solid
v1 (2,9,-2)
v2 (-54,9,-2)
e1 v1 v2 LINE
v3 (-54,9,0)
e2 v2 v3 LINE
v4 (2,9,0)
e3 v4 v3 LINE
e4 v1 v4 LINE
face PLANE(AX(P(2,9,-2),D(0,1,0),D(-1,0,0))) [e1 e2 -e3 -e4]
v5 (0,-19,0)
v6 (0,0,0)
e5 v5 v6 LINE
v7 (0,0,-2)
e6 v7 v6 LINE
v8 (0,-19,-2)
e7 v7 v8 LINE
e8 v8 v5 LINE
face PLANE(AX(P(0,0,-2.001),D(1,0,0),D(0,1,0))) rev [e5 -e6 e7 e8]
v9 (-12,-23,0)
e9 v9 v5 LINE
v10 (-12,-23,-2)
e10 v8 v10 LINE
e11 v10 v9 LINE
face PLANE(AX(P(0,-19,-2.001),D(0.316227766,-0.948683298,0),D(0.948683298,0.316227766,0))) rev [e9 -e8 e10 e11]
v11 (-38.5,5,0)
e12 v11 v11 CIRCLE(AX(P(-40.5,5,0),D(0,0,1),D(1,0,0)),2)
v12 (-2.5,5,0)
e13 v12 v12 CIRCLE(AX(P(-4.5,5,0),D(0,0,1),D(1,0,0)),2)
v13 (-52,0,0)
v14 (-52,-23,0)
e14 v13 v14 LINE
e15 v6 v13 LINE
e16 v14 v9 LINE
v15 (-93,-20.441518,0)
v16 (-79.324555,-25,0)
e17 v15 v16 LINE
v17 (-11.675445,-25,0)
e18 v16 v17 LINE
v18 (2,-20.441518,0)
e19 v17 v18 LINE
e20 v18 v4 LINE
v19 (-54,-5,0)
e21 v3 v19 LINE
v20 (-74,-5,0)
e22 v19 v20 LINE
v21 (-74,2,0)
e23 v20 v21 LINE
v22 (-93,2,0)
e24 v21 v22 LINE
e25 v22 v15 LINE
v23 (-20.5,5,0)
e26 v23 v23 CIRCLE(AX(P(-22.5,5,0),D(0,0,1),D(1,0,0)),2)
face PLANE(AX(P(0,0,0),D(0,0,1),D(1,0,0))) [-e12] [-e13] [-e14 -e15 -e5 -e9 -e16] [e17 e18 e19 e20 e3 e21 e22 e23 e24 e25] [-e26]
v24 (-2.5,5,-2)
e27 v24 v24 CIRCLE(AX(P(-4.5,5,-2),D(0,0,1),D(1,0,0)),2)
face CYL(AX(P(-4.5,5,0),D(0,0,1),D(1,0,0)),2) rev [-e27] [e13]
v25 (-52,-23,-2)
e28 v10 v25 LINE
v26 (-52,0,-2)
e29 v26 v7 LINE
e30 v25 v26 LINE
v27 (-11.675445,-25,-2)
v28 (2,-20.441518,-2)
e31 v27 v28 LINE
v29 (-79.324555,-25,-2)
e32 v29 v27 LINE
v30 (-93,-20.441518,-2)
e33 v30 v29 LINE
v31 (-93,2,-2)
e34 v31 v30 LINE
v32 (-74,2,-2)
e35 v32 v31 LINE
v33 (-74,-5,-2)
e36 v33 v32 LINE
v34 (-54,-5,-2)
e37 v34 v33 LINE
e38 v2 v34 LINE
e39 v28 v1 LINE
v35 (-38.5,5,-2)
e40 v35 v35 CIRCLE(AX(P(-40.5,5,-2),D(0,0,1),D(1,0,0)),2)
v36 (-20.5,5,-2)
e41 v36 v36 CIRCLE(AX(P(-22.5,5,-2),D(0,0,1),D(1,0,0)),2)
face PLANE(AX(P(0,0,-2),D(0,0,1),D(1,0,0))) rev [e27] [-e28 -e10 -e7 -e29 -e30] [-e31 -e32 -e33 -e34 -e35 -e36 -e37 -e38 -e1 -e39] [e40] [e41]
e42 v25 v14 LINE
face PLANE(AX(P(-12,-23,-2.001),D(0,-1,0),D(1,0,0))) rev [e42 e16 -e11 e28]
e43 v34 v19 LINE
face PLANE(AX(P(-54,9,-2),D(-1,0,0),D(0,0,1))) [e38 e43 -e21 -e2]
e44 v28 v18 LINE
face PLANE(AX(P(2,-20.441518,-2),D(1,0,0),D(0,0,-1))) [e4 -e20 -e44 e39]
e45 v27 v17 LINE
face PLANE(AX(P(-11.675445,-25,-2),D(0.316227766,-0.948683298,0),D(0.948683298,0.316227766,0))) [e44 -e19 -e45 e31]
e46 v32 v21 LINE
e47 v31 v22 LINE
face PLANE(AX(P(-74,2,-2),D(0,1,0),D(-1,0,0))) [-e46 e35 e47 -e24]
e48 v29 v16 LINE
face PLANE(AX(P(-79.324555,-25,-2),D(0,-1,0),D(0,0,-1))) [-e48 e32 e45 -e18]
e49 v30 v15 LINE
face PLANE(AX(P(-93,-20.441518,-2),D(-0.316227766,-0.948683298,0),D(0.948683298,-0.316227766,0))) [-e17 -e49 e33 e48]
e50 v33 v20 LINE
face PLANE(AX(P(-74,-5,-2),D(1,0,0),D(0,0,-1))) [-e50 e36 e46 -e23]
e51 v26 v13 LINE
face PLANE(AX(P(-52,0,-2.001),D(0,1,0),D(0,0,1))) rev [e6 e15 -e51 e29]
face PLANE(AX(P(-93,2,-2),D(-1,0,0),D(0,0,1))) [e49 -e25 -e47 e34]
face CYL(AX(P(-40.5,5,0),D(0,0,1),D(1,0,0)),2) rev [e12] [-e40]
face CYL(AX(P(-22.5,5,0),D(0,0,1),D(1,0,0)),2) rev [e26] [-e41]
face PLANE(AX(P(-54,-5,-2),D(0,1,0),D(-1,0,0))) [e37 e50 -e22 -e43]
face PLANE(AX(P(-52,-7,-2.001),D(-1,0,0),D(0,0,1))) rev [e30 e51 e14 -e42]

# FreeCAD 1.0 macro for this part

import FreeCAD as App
import Part
import Sketcher
from FreeCAD import Vector


def add_polygon(sketch, points):
    """Adds a closed chain of lines whose ends are joined by coincident constraints."""
    first, n = sketch.GeometryCount, len(points)
    for a, b in zip(points, points[1:] + points[:1]):
        sketch.addGeometry(Part.LineSegment(App.Vector(*a, 0), App.Vector(*b, 0)), False)
    for i in range(n):
        sketch.addConstraint(Sketcher.Constraint("Coincident", first + i, 2, first + (i + 1) % n, 1))

doc = App.newDocument("Part")
body = doc.addObject("PartDesign::Body", "Body")

# Sketch on XY plane
sketch1 = body.newObject("Sketcher::SketchObject", "Sketch")
sketch1.AttachmentSupport = (doc.getObject("XY_Plane"), [""])
sketch1.MapMode = "FlatFace"
add_polygon(sketch1, [(2, 9), (-54, 9), (-54, -5), (-74, -5), (-74, 2), (-93, 2), (-93, -20), (-79, -25), (-12, -25), (2, -20)])  # lines 0-9
sketch1.addConstraint(Sketcher.Constraint("Horizontal", 0))
sketch1.addConstraint(Sketcher.Constraint("Vertical", 1))
sketch1.addConstraint(Sketcher.Constraint("Horizontal", 2))
sketch1.addConstraint(Sketcher.Constraint("Vertical", 3))
sketch1.addConstraint(Sketcher.Constraint("Horizontal", 4))
sketch1.addConstraint(Sketcher.Constraint("Vertical", 5))
sketch1.addConstraint(Sketcher.Constraint("Horizontal", 7))
sketch1.addConstraint(Sketcher.Constraint("Vertical", 9))
sketch1.addConstraint(Sketcher.Constraint("Horizontal", 5, 2, 8, 2))
sketch1.addConstraint(Sketcher.Constraint("Equal", 6, 8))
sketch1.addConstraint(Sketcher.Constraint("DistanceX", 0, 2, 0, 1, 56.0))
sketch1.addConstraint(Sketcher.Constraint("DistanceX", 2, 2, 2, 1, 20.0))
sketch1.addConstraint(Sketcher.Constraint("DistanceX", 4, 2, 4, 1, 19.0))
sketch1.addConstraint(Sketcher.Constraint("DistanceY", 1, 2, 1, 1, 14.0))
sketch1.addConstraint(Sketcher.Constraint("DistanceY", 3, 1, 3, 2, 7.0))
sketch1.addConstraint(Sketcher.Constraint("DistanceX", 0, 2, -1, 1, 54.0))
sketch1.addConstraint(Sketcher.Constraint("DistanceY", -1, 1, 0, 2, 9.0))
sketch1.addConstraint(Sketcher.Constraint("DistanceY", 6, 2, -1, 1, 25.0))
sketch1.addConstraint(Sketcher.Constraint("DistanceX", 7, 1, 7, 2, 67.649111))
sketch1.addConstraint(Sketcher.Constraint("DistanceY", 5, 2, 5, 1, 22.441518))
pad1 = body.newObject("PartDesign::Pad", "Pad")
pad1.Profile = sketch1
pad1.Length = 2
pad1.Reversed = True

# Sketch on XY plane
sketch2 = body.newObject("Sketcher::SketchObject", "Sketch001")
sketch2.AttachmentSupport = (doc.getObject("XY_Plane"), [""])
sketch2.MapMode = "FlatFace"
sketch2.addGeometry(Part.Circle(Vector(-40.5, 5, 0), Vector(0, 0, 1), 2), False)
sketch2.addGeometry(Part.Circle(Vector(-22.5, 5, 0), Vector(0, 0, 1), 2), False)
sketch2.addGeometry(Part.Circle(Vector(-4.5, 5, 0), Vector(0, 0, 1), 2), False)
sketch2.addConstraint(Sketcher.Constraint("Equal", 0, 1))
sketch2.addConstraint(Sketcher.Constraint("Equal", 1, 2))
sketch2.addConstraint(Sketcher.Constraint("Horizontal", 0, 3, 1, 3))
sketch2.addConstraint(Sketcher.Constraint("Horizontal", 1, 3, 2, 3))
sketch2.addConstraint(Sketcher.Constraint("Diameter", 0, 4.0))
sketch2.addConstraint(Sketcher.Constraint("DistanceY", -1, 1, 0, 3, 5.0))
sketch2.addConstraint(Sketcher.Constraint("DistanceX", 0, 3, 1, 3, 18.0))
sketch2.addConstraint(Sketcher.Constraint("DistanceX", 1, 3, 2, 3, 18.0))
sketch2.addConstraint(Sketcher.Constraint("DistanceX", 0, 3, -1, 1, 40.5))
doc.recompute()
hole = body.newObject("PartDesign::Hole", "Hole")
hole.Profile = sketch2
hole.ThreadType = "None"
hole.Diameter = 4
hole.DepthType = "ThroughAll"

# Sketch on XY plane
sketch3 = body.newObject("Sketcher::SketchObject", "Sketch002")
sketch3.AttachmentSupport = (doc.getObject("XY_Plane"), [""])
sketch3.MapMode = "FlatFace"
add_polygon(sketch3, [(0, -19), (0, 0), (-52, 0), (-52, -7), (-76, -7), (-76, 0), (-91, 0), (-91, -19), (-79, -23), (-12, -23)])  # lines 0-9
sketch3.addConstraint(Sketcher.Constraint("Vertical", 0))
sketch3.addConstraint(Sketcher.Constraint("Horizontal", 1))
sketch3.addConstraint(Sketcher.Constraint("Vertical", 2))
sketch3.addConstraint(Sketcher.Constraint("Horizontal", 3))
sketch3.addConstraint(Sketcher.Constraint("Vertical", 4))
sketch3.addConstraint(Sketcher.Constraint("Horizontal", 5))
sketch3.addConstraint(Sketcher.Constraint("Vertical", 6))
sketch3.addConstraint(Sketcher.Constraint("Horizontal", 8))
sketch3.addConstraint(Sketcher.Constraint("Coincident", 0, 2, -1, 1))
sketch3.addConstraint(Sketcher.Constraint("PointOnObject", 4, 2, -1))
sketch3.addConstraint(Sketcher.Constraint("Horizontal", 6, 2, 9, 2))
sketch3.addConstraint(Sketcher.Constraint("Equal", 7, 9))
sketch3.addConstraint(Sketcher.Constraint("DistanceX", 1, 2, 1, 1, 52.0))
sketch3.addConstraint(Sketcher.Constraint("DistanceX", 3, 2, 3, 1, 24.0))
sketch3.addConstraint(Sketcher.Constraint("DistanceX", 5, 2, 5, 1, 15.0))
sketch3.addConstraint(Sketcher.Constraint("DistanceX", 8, 1, 8, 2, 67.0))
sketch3.addConstraint(Sketcher.Constraint("DistanceY", 0, 1, 0, 2, 19.0))
sketch3.addConstraint(Sketcher.Constraint("DistanceY", 2, 2, 2, 1, 7.0))
sketch3.addConstraint(Sketcher.Constraint("DistanceY", 7, 2, -1, 1, 23.0))
pocket1 = body.newObject("PartDesign::Pocket", "Pocket")
pocket1.Profile = sketch3
pocket1.Type = "UpToFirst"

# Sketch on XY plane
sketch4 = body.newObject("Sketcher::SketchObject", "Sketch003")
sketch4.AttachmentSupport = (doc.getObject("XY_Plane"), [""])
sketch4.MapMode = "FlatFace"
add_polygon(sketch4, [(-52, -23), (-52, -7), (-76, -7), (-76, 0), (-91, 0), (-91, -19), (-79, -23)])  # lines 0-6
sketch4.addConstraint(Sketcher.Constraint("Vertical", 0))
sketch4.addConstraint(Sketcher.Constraint("Horizontal", 1))
sketch4.addConstraint(Sketcher.Constraint("Vertical", 2))
sketch4.addConstraint(Sketcher.Constraint("Horizontal", 3))
sketch4.addConstraint(Sketcher.Constraint("Vertical", 4))
sketch4.addConstraint(Sketcher.Constraint("Horizontal", 6))
sketch4.addConstraint(Sketcher.Constraint("PointOnObject", 2, 2, -1))
sketch4.addConstraint(Sketcher.Constraint("DistanceX", 1, 2, 1, 1, 24.0))
sketch4.addConstraint(Sketcher.Constraint("DistanceX", 3, 2, 3, 1, 15.0))
sketch4.addConstraint(Sketcher.Constraint("DistanceX", 6, 1, 6, 2, 27.0))
sketch4.addConstraint(Sketcher.Constraint("DistanceY", 0, 1, 0, 2, 16.0))
sketch4.addConstraint(Sketcher.Constraint("DistanceY", 2, 1, 2, 2, 7.0))
sketch4.addConstraint(Sketcher.Constraint("DistanceY", 4, 2, 4, 1, 19.0))
sketch4.addConstraint(Sketcher.Constraint("DistanceX", 0, 2, -1, 1, 52.0))
pad2 = body.newObject("PartDesign::Pad", "Pad001")
pad2.Profile = sketch4
pad2.Length = 2
pad2.Reversed = True

doc.recompute()
